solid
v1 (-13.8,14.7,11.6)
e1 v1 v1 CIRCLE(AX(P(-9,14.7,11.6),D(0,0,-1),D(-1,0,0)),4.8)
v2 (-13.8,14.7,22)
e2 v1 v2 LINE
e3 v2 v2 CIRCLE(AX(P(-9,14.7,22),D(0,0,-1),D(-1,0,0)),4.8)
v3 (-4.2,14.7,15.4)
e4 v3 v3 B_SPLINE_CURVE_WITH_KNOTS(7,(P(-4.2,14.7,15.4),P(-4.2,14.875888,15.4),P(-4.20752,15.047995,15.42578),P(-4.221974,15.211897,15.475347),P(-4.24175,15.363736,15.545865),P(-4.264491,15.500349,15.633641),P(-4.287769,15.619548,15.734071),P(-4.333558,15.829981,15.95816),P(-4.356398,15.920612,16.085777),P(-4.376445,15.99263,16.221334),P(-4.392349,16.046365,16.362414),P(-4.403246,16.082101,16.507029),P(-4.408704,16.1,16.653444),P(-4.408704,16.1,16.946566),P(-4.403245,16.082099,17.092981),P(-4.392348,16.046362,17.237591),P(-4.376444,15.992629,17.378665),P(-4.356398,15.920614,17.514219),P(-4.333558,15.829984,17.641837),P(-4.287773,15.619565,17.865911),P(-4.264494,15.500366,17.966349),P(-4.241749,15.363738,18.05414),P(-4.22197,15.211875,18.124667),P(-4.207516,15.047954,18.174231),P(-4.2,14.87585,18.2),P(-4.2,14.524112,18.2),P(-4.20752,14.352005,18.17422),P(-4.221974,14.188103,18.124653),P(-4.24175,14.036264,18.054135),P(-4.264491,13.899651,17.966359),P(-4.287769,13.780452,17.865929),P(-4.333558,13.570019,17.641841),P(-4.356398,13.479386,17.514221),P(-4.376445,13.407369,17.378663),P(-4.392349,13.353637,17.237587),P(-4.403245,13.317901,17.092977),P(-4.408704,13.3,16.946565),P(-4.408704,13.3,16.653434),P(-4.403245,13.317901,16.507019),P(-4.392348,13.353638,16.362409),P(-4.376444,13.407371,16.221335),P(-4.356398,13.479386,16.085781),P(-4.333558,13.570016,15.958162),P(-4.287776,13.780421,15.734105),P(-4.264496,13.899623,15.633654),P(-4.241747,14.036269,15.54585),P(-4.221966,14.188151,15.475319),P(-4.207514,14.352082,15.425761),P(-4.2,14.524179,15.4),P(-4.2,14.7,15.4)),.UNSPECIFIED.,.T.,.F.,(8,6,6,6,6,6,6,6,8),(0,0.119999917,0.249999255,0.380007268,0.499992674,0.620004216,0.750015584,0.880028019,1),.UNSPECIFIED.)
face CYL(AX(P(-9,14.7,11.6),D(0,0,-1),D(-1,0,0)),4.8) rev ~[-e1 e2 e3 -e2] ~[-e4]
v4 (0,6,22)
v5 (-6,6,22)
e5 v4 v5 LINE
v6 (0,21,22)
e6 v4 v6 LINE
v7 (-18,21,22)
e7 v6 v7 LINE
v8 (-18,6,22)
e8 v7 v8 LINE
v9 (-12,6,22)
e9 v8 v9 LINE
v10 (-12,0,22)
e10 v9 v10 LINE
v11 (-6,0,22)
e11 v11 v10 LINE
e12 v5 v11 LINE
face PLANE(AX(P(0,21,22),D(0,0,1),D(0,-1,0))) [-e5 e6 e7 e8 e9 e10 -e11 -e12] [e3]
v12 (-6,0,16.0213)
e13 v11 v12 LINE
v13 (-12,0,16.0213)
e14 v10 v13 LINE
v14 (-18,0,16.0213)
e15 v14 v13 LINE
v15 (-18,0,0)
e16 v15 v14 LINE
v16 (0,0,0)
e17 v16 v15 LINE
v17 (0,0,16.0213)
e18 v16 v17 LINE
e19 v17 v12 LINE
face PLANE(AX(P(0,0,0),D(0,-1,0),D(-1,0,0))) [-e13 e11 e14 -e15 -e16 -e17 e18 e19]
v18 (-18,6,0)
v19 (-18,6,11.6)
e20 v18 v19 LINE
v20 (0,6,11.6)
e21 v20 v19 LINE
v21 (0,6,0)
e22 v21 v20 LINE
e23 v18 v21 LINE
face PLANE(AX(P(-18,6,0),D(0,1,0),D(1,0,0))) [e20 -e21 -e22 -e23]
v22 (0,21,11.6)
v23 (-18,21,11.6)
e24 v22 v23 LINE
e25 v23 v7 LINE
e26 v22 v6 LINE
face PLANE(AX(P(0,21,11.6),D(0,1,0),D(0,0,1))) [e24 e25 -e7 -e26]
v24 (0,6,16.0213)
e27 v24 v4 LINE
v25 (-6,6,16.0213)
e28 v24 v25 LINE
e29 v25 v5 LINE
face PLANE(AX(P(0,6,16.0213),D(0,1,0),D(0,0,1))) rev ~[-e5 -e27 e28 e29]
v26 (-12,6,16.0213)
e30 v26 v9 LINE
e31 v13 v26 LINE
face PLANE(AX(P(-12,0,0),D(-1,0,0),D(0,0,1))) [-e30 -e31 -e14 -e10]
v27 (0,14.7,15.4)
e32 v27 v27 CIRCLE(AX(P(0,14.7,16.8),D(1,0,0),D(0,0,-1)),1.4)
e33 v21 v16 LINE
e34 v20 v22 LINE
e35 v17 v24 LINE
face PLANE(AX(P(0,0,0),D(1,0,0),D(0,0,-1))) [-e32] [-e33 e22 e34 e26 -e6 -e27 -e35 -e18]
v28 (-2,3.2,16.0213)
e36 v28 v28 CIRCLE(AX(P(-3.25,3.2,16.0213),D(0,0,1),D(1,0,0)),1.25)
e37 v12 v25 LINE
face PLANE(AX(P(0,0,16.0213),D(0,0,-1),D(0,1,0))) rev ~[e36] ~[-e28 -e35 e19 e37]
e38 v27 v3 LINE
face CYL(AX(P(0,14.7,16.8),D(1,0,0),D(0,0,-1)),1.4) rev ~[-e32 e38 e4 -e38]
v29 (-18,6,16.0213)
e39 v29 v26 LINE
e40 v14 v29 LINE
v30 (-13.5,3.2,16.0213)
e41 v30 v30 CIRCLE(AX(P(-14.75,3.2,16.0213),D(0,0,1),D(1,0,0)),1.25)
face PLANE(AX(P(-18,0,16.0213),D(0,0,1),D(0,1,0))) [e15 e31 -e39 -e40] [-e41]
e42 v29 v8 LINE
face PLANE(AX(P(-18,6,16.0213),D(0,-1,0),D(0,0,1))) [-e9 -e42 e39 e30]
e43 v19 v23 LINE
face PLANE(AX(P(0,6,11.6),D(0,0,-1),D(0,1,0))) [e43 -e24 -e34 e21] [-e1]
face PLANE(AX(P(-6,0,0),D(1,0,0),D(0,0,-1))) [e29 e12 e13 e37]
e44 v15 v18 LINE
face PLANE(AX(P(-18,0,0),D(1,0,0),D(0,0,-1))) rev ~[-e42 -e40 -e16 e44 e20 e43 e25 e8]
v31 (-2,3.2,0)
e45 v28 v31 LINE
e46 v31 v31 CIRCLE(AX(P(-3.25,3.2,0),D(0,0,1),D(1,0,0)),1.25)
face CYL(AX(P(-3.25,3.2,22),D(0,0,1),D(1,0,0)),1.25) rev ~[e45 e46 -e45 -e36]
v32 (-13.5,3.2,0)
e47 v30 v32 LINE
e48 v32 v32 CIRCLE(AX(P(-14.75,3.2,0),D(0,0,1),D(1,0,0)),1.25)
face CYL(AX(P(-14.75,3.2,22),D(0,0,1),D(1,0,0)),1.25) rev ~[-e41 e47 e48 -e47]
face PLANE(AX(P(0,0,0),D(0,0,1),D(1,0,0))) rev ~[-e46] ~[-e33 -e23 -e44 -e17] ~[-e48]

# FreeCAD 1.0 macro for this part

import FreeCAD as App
import Part
import Sketcher

V = App.Vector


def add_polygon(sketch, points):
    """Adds a closed chain of lines whose ends are joined by coincident constraints."""
    first, n = sketch.GeometryCount, len(points)
    for a, b in zip(points, points[1:] + points[:1]):
        sketch.addGeometry(Part.LineSegment(App.Vector(*a, 0), App.Vector(*b, 0)), False)
    for i in range(n):
        sketch.addConstraint(Sketcher.Constraint("Coincident", first + i, 2, first + (i + 1) % n, 1))

doc = App.newDocument("Part")
body = doc.addObject("PartDesign::Body", "Body")

# Sketch on XY plane
sketch1 = doc.addObject("Sketcher::SketchObject", "Sketch")
body.addObject(sketch1)
sketch1.AttachmentSupport = (doc.XY_Plane, [""])
sketch1.MapMode = "FlatFace"
add_polygon(sketch1, [(-18, 0), (0, 0), (0, 6), (-18, 6)])  # lines 0-3
sketch1.addConstraint(Sketcher.Constraint("Horizontal", 0))
sketch1.addConstraint(Sketcher.Constraint("Vertical", 1))
sketch1.addConstraint(Sketcher.Constraint("Horizontal", 2))
sketch1.addConstraint(Sketcher.Constraint("Vertical", 3))
sketch1.addConstraint(Sketcher.Constraint("Coincident", 0, 2, -1, 1))
sketch1.addConstraint(Sketcher.Constraint("DistanceX", 0, 1, 0, 2, 18.0))
sketch1.addConstraint(Sketcher.Constraint("DistanceY", 1, 1, 1, 2, 6.0))
pad1 = doc.addObject("PartDesign::Pad", "Pad")
body.addObject(pad1)
pad1.Profile = sketch1
pad1.Length = 22

# Sketch on XY plane
sketch2 = doc.addObject("Sketcher::SketchObject", "Sketch001")
body.addObject(sketch2)
sketch2.AttachmentSupport = (doc.XY_Plane, [""])
sketch2.MapMode = "FlatFace"
sketch2.AttachmentOffset = App.Placement(V(0, 0, 22), App.Rotation())
sketch2.addGeometry(Part.Circle(V(-14.75, 3.2, 0), V(0, 0, 1), 1.25), False)
sketch2.addGeometry(Part.Circle(V(-3.25, 3.2, 0), V(0, 0, 1), 1.25), False)
sketch2.addConstraint(Sketcher.Constraint("Equal", 0, 1))
sketch2.addConstraint(Sketcher.Constraint("Horizontal", 0, 3, 1, 3))
sketch2.addConstraint(Sketcher.Constraint("Diameter", 0, 2.5))
sketch2.addConstraint(Sketcher.Constraint("DistanceX", 0, 3, 1, 3, 11.5))
sketch2.addConstraint(Sketcher.Constraint("DistanceX", 1, 3, -1, 1, 3.25))
sketch2.addConstraint(Sketcher.Constraint("DistanceY", -1, 1, 0, 3, 3.2))
pocket1 = doc.addObject("PartDesign::Pocket", "Pocket")
body.addObject(pocket1)
pocket1.Profile = sketch2
pocket1.Type = "ThroughAll"

# Sketch on YZ plane
sketch3 = doc.addObject("Sketcher::SketchObject", "Sketch002")
body.addObject(sketch3)
sketch3.AttachmentSupport = (doc.YZ_Plane, [""])
sketch3.MapMode = "FlatFace"
add_polygon(sketch3, [(6, 22), (6, 11.6), (21, 11.6), (21, 22)])  # lines 0-3
sketch3.addConstraint(Sketcher.Constraint("Vertical", 0))
sketch3.addConstraint(Sketcher.Constraint("Horizontal", 1))
sketch3.addConstraint(Sketcher.Constraint("Vertical", 2))
sketch3.addConstraint(Sketcher.Constraint("Horizontal", 3))
sketch3.addConstraint(Sketcher.Constraint("DistanceX", 1, 1, 1, 2, 15.0))
sketch3.addConstraint(Sketcher.Constraint("DistanceY", 0, 2, 0, 1, 10.4))
sketch3.addConstraint(Sketcher.Constraint("DistanceX", -1, 1, 0, 2, 6.0))
sketch3.addConstraint(Sketcher.Constraint("DistanceY", -1, 1, 2, 2, 22.0))
pad2 = doc.addObject("PartDesign::Pad", "Pad001")
body.addObject(pad2)
pad2.Profile = sketch3
pad2.Length = 18
pad2.Reversed = True

# Sketch on XY plane
sketch4 = doc.addObject("Sketcher::SketchObject", "Sketch003")
body.addObject(sketch4)
sketch4.AttachmentSupport = (doc.XY_Plane, [""])
sketch4.MapMode = "FlatFace"
sketch4.AttachmentOffset = App.Placement(V(0, 0, 11.6), App.Rotation())
sketch4.addGeometry(Part.Circle(V(-9, 14.7, 0), V(0, 0, 1), 4.8), False)
sketch4.addConstraint(Sketcher.Constraint("Diameter", 0, 9.6))
sketch4.addConstraint(Sketcher.Constraint("DistanceX", 0, 3, -1, 1, 9.0))
sketch4.addConstraint(Sketcher.Constraint("DistanceY", -1, 1, 0, 3, 14.7))
pocket2 = doc.addObject("PartDesign::Pocket", "Pocket001")
body.addObject(pocket2)
pocket2.Profile = sketch4
pocket2.Type = "ThroughAll"
pocket2.Reversed = True

# Sketch on YZ plane
sketch5 = doc.addObject("Sketcher::SketchObject", "Sketch004")
body.addObject(sketch5)
sketch5.AttachmentSupport = (doc.YZ_Plane, [""])
sketch5.MapMode = "FlatFace"
sketch5.AttachmentOffset = App.Placement(V(0, 0, -18), App.Rotation())
add_polygon(sketch5, [(0, 16.0213), (0, 22.0213), (6, 22.0213), (6, 16.0213)])  # lines 0-3
sketch5.addConstraint(Sketcher.Constraint("Vertical", 0))
sketch5.addConstraint(Sketcher.Constraint("Horizontal", 1))
sketch5.addConstraint(Sketcher.Constraint("Vertical", 2))
sketch5.addConstraint(Sketcher.Constraint("Horizontal", 3))
sketch5.addConstraint(Sketcher.Constraint("PointOnObject", 0, 2, -2))
sketch5.addConstraint(Sketcher.Constraint("Equal", 3, 0))
sketch5.addConstraint(Sketcher.Constraint("DistanceX", 1, 1, 1, 2, 6.0))
sketch5.addConstraint(Sketcher.Constraint("DistanceY", -1, 1, 0, 2, 22.0213))
pocket3 = doc.addObject("PartDesign::Pocket", "Pocket002")
body.addObject(pocket3)
pocket3.Profile = sketch5
pocket3.Length = 6
pocket3.Reversed = True

# Sketch on YZ plane
sketch6 = doc.addObject("Sketcher::SketchObject", "Sketch005")
body.addObject(sketch6)
sketch6.AttachmentSupport = (doc.YZ_Plane, [""])
sketch6.MapMode = "FlatFace"
add_polygon(sketch6, [(6, 16.0213), (6, 22), (0, 22), (0, 16.0213)])  # lines 0-3
sketch6.addConstraint(Sketcher.Constraint("Vertical", 0))
sketch6.addConstraint(Sketcher.Constraint("Horizontal", 1))
sketch6.addConstraint(Sketcher.Constraint("Vertical", 2))
sketch6.addConstraint(Sketcher.Constraint("Horizontal", 3))
sketch6.addConstraint(Sketcher.Constraint("PointOnObject", 1, 2, -2))
sketch6.addConstraint(Sketcher.Constraint("DistanceX", 1, 2, 1, 1, 6.0))
sketch6.addConstraint(Sketcher.Constraint("DistanceY", -1, 1, 0, 2, 22.0))
sketch6.addConstraint(Sketcher.Constraint("DistanceY", 0, 1, 0, 2, 5.9787))
pocket4 = doc.addObject("PartDesign::Pocket", "Pocket003")
body.addObject(pocket4)
pocket4.Profile = sketch6
pocket4.Length = 6

# Sketch on YZ plane
sketch7 = doc.addObject("Sketcher::SketchObject", "Sketch006")
body.addObject(sketch7)
sketch7.AttachmentSupport = (doc.YZ_Plane, [""])
sketch7.MapMode = "FlatFace"
sketch7.addGeometry(Part.Circle(V(14.7, 16.8, 0), V(0, 0, 1), 1.4), False)
sketch7.addConstraint(Sketcher.Constraint("Diameter", 0, 2.8))
sketch7.addConstraint(Sketcher.Constraint("DistanceX", -1, 1, 0, 3, 14.7))
sketch7.addConstraint(Sketcher.Constraint("DistanceY", -1, 1, 0, 3, 16.8))
pocket5 = doc.addObject("PartDesign::Pocket", "Pocket004")
body.addObject(pocket5)
pocket5.Profile = sketch7
pocket5.Length = 6

doc.recompute()
